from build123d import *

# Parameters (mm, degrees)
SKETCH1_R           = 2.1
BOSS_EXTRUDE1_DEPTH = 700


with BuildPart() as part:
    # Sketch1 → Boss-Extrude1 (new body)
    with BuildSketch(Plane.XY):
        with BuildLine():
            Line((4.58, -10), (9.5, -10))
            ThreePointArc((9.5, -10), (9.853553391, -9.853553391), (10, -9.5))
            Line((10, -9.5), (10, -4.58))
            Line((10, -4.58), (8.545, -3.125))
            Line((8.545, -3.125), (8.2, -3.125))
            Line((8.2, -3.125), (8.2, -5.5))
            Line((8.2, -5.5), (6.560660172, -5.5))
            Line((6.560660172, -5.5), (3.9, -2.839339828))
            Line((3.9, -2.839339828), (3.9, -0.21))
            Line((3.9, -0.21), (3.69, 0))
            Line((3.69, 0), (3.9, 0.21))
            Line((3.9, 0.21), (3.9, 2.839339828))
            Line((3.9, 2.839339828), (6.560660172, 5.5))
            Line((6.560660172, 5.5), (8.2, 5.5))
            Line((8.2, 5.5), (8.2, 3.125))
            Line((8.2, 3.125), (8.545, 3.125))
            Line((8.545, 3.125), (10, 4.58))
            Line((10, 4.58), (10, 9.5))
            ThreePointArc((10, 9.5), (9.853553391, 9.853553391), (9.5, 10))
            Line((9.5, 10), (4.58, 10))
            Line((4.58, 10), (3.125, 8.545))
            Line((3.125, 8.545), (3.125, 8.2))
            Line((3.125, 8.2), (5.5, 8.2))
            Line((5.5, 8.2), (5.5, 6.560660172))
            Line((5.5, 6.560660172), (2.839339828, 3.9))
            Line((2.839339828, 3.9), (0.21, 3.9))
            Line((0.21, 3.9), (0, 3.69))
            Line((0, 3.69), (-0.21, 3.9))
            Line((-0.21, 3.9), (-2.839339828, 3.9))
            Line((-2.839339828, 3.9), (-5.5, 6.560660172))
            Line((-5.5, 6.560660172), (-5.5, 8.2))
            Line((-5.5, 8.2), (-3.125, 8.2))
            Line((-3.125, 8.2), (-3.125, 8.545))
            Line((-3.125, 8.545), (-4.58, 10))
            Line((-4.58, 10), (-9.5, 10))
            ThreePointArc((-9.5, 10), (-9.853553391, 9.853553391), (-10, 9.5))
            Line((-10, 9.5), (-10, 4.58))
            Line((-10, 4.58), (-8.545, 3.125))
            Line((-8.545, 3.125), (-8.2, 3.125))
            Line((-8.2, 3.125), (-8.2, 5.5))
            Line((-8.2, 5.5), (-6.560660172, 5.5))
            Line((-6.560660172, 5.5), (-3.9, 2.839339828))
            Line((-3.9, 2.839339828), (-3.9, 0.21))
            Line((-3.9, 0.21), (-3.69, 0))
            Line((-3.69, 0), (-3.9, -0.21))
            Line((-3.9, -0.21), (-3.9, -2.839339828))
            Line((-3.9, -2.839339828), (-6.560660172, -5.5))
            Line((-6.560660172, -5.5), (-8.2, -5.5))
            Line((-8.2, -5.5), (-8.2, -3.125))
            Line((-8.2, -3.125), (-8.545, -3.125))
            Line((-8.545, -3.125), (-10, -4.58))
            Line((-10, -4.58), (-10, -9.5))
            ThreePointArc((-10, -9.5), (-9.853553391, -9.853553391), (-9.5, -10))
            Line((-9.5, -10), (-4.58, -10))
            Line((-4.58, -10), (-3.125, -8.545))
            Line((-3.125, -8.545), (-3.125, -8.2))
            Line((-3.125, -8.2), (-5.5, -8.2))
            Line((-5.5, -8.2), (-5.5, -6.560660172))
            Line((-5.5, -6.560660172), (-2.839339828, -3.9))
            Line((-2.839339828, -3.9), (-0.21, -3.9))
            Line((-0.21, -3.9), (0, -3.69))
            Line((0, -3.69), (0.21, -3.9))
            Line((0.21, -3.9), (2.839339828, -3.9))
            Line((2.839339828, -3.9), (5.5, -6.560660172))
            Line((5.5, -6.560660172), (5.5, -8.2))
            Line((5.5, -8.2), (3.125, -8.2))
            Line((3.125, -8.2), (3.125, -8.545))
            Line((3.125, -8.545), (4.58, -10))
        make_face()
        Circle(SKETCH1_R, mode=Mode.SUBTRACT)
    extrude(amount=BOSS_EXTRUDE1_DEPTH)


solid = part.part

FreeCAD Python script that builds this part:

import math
import FreeCAD as App
import Part
import Sketcher
from FreeCAD import Vector
Q = App.Units.Quantity

doc = App.newDocument("Part")
body = doc.addObject("PartDesign::Body", "Body")

# Sketch on XY plane
sketch1 = body.newObject("Sketcher::SketchObject", "Sketch")
sketch1.AttachmentSupport = (doc.getObject("XY_Plane"), [""])
sketch1.MapMode = "FlatFace"
sketch1.addGeometry(Part.LineSegment(Vector(4.58, -10, 0), Vector(9.5, -10, 0)), False)
sketch1.addGeometry(Part.ArcOfCircle(Part.Circle(Vector(9.5, -9.5, 0), Vector(0, 0, 1), 0.5), math.radians(-90), math.radians(0)), False)
sketch1.addGeometry(Part.LineSegment(Vector(10, -9.5, 0), Vector(10, -4.58, 0)), False)
sketch1.addGeometry(Part.LineSegment(Vector(10, -4.58, 0), Vector(8.54, -3.12, 0)), False)
sketch1.addGeometry(Part.LineSegment(Vector(8.54, -3.12, 0), Vector(8.2, -3.12, 0)), False)
sketch1.addGeometry(Part.LineSegment(Vector(8.2, -3.12, 0), Vector(8.2, -5.5, 0)), False)
sketch1.addGeometry(Part.LineSegment(Vector(8.2, -5.5, 0), Vector(6.56, -5.5, 0)), False)
sketch1.addGeometry(Part.LineSegment(Vector(6.56, -5.5, 0), Vector(3.9, -2.84, 0)), False)
sketch1.addGeometry(Part.LineSegment(Vector(3.9, -2.84, 0), Vector(3.9, -0.21, 0)), False)
sketch1.addGeometry(Part.LineSegment(Vector(3.9, -0.21, 0), Vector(3.69, 0, 0)), False)
sketch1.addGeometry(Part.LineSegment(Vector(3.69, 0, 0), Vector(3.9, 0.21, 0)), False)
sketch1.addGeometry(Part.LineSegment(Vector(3.9, 0.21, 0), Vector(3.9, 2.84, 0)), False)
sketch1.addGeometry(Part.LineSegment(Vector(3.9, 2.84, 0), Vector(6.56, 5.5, 0)), False)
sketch1.addGeometry(Part.LineSegment(Vector(6.56, 5.5, 0), Vector(8.2, 5.5, 0)), False)
sketch1.addGeometry(Part.LineSegment(Vector(8.2, 5.5, 0), Vector(8.2, 3.12, 0)), False)
sketch1.addGeometry(Part.LineSegment(Vector(8.2, 3.12, 0), Vector(8.54, 3.12, 0)), False)
sketch1.addGeometry(Part.LineSegment(Vector(8.54, 3.12, 0), Vector(10, 4.58, 0)), False)
sketch1.addGeometry(Part.LineSegment(Vector(10, 4.58, 0), Vector(10, 9.5, 0)), False)
sketch1.addGeometry(Part.ArcOfCircle(Part.Circle(Vector(9.5, 9.5, 0), Vector(0, 0, 1), 0.5), math.radians(0), math.radians(90)), False)
sketch1.addGeometry(Part.LineSegment(Vector(9.5, 10, 0), Vector(4.58, 10, 0)), False)
sketch1.addGeometry(Part.LineSegment(Vector(4.58, 10, 0), Vector(3.12, 8.54, 0)), False)
sketch1.addGeometry(Part.LineSegment(Vector(3.12, 8.54, 0), Vector(3.12, 8.2, 0)), False)
sketch1.addGeometry(Part.LineSegment(Vector(3.12, 8.2, 0), Vector(5.5, 8.2, 0)), False)
sketch1.addGeometry(Part.LineSegment(Vector(5.5, 8.2, 0), Vector(5.5, 6.56, 0)), False)
sketch1.addGeometry(Part.LineSegment(Vector(5.5, 6.56, 0), Vector(2.84, 3.9, 0)), False)
sketch1.addGeometry(Part.LineSegment(Vector(2.84, 3.9, 0), Vector(0.21, 3.9, 0)), False)
sketch1.addGeometry(Part.LineSegment(Vector(0.21, 3.9, 0), Vector(0, 3.69, 0)), False)
sketch1.addGeometry(Part.LineSegment(Vector(0, 3.69, 0), Vector(-0.21, 3.9, 0)), False)
sketch1.addGeometry(Part.LineSegment(Vector(-0.21, 3.9, 0), Vector(-2.84, 3.9, 0)), False)
sketch1.addGeometry(Part.LineSegment(Vector(-2.84, 3.9, 0), Vector(-5.5, 6.56, 0)), False)
sketch1.addGeometry(Part.LineSegment(Vector(-5.5, 6.56, 0), Vector(-5.5, 8.2, 0)), False)
sketch1.addGeometry(Part.LineSegment(Vector(-5.5, 8.2, 0), Vector(-3.12, 8.2, 0)), False)
sketch1.addGeometry(Part.LineSegment(Vector(-3.12, 8.2, 0), Vector(-3.12, 8.54, 0)), False)
sketch1.addGeometry(Part.LineSegment(Vector(-3.12, 8.54, 0), Vector(-4.58, 10, 0)), False)
sketch1.addGeometry(Part.LineSegment(Vector(-4.58, 10, 0), Vector(-9.5, 10, 0)), False)
sketch1.addGeometry(Part.ArcOfCircle(Part.Circle(Vector(-9.5, 9.5, 0), Vector(0, 0, 1), 0.5), math.radians(90), math.radians(180)), False)
sketch1.addGeometry(Part.LineSegment(Vector(-10, 9.5, 0), Vector(-10, 4.58, 0)), False)
sketch1.addGeometry(Part.LineSegment(Vector(-10, 4.58, 0), Vector(-8.54, 3.12, 0)), False)
sketch1.addGeometry(Part.LineSegment(Vector(-8.54, 3.12, 0), Vector(-8.2, 3.12, 0)), False)
sketch1.addGeometry(Part.LineSegment(Vector(-8.2, 3.12, 0), Vector(-8.2, 5.5, 0)), False)
sketch1.addGeometry(Part.LineSegment(Vector(-8.2, 5.5, 0), Vector(-6.56, 5.5, 0)), False)
sketch1.addGeometry(Part.LineSegment(Vector(-6.56, 5.5, 0), Vector(-3.9, 2.84, 0)), False)
sketch1.addGeometry(Part.LineSegment(Vector(-3.9, 2.84, 0), Vector(-3.9, 0.21, 0)), False)
sketch1.addGeometry(Part.LineSegment(Vector(-3.9, 0.21, 0), Vector(-3.69, 0, 0)), False)
sketch1.addGeometry(Part.LineSegment(Vector(-3.69, 0, 0), Vector(-3.9, -0.21, 0)), False)
sketch1.addGeometry(Part.LineSegment(Vector(-3.9, -0.21, 0), Vector(-3.9, -2.84, 0)), False)
sketch1.addGeometry(Part.LineSegment(Vector(-3.9, -2.84, 0), Vector(-6.56, -5.5, 0)), False)
sketch1.addGeometry(Part.LineSegment(Vector(-6.56, -5.5, 0), Vector(-8.2, -5.5, 0)), False)
sketch1.addGeometry(Part.LineSegment(Vector(-8.2, -5.5, 0), Vector(-8.2, -3.12, 0)), False)
sketch1.addGeometry(Part.LineSegment(Vector(-8.2, -3.12, 0), Vector(-8.54, -3.12, 0)), False)
sketch1.addGeometry(Part.LineSegment(Vector(-8.54, -3.12, 0), Vector(-10, -4.58, 0)), False)
sketch1.addGeometry(Part.LineSegment(Vector(-10, -4.58, 0), Vector(-10, -9.5, 0)), False)
sketch1.addGeometry(Part.ArcOfCircle(Part.Circle(Vector(-9.5, -9.5, 0), Vector(0, 0, 1), 0.5), math.radians(180), math.radians(270)), False)
sketch1.addGeometry(Part.LineSegment(Vector(-9.5, -10, 0), Vector(-4.58, -10, 0)), False)
sketch1.addGeometry(Part.LineSegment(Vector(-4.58, -10, 0), Vector(-3.12, -8.54, 0)), False)
sketch1.addGeometry(Part.LineSegment(Vector(-3.12, -8.54, 0), Vector(-3.12, -8.2, 0)), False)
sketch1.addGeometry(Part.LineSegment(Vector(-3.12, -8.2, 0), Vector(-5.5, -8.2, 0)), False)
sketch1.addGeometry(Part.LineSegment(Vector(-5.5, -8.2, 0), Vector(-5.5, -6.56, 0)), False)
sketch1.addGeometry(Part.LineSegment(Vector(-5.5, -6.56, 0), Vector(-2.84, -3.9, 0)), False)
sketch1.addGeometry(Part.LineSegment(Vector(-2.84, -3.9, 0), Vector(-0.21, -3.9, 0)), False)
sketch1.addGeometry(Part.LineSegment(Vector(-0.21, -3.9, 0), Vector(0, -3.69, 0)), False)
sketch1.addGeometry(Part.LineSegment(Vector(0, -3.69, 0), Vector(0.21, -3.9, 0)), False)
sketch1.addGeometry(Part.LineSegment(Vector(0.21, -3.9, 0), Vector(2.84, -3.9, 0)), False)
sketch1.addGeometry(Part.LineSegment(Vector(2.84, -3.9, 0), Vector(5.5, -6.56, 0)), False)
sketch1.addGeometry(Part.LineSegment(Vector(5.5, -6.56, 0), Vector(5.5, -8.2, 0)), False)
sketch1.addGeometry(Part.LineSegment(Vector(5.5, -8.2, 0), Vector(3.12, -8.2, 0)), False)
sketch1.addGeometry(Part.LineSegment(Vector(3.12, -8.2, 0), Vector(3.12, -8.54, 0)), False)
sketch1.addGeometry(Part.LineSegment(Vector(3.12, -8.54, 0), Vector(4.58, -10, 0)), False)
sketch1.addGeometry(Part.Circle(Vector(0, 0, 0), Vector(0, 0, 1), 2.1), False)
sketch1.addConstraint(Sketcher.Constraint("Tangent", 0, 2, 1, 1))
sketch1.addConstraint(Sketcher.Constraint("Tangent", 1, 2, 2, 1))
sketch1.addConstraint(Sketcher.Constraint("Coincident", 2, 2, 3, 1))
sketch1.addConstraint(Sketcher.Constraint("Coincident", 3, 2, 4, 1))
sketch1.addConstraint(Sketcher.Constraint("Coincident", 4, 2, 5, 1))
sketch1.addConstraint(Sketcher.Constraint("Coincident", 5, 2, 6, 1))
sketch1.addConstraint(Sketcher.Constraint("Coincident", 6, 2, 7, 1))
sketch1.addConstraint(Sketcher.Constraint("Coincident", 7, 2, 8, 1))
sketch1.addConstraint(Sketcher.Constraint("Coincident", 8, 2, 9, 1))
sketch1.addConstraint(Sketcher.Constraint("Coincident", 9, 2, 10, 1))
sketch1.addConstraint(Sketcher.Constraint("Coincident", 10, 2, 11, 1))
sketch1.addConstraint(Sketcher.Constraint("Coincident", 11, 2, 12, 1))
sketch1.addConstraint(Sketcher.Constraint("Coincident", 12, 2, 13, 1))
sketch1.addConstraint(Sketcher.Constraint("Coincident", 13, 2, 14, 1))
sketch1.addConstraint(Sketcher.Constraint("Coincident", 14, 2, 15, 1))
sketch1.addConstraint(Sketcher.Constraint("Coincident", 15, 2, 16, 1))
sketch1.addConstraint(Sketcher.Constraint("Coincident", 16, 2, 17, 1))
sketch1.addConstraint(Sketcher.Constraint("Tangent", 17, 2, 18, 1))
sketch1.addConstraint(Sketcher.Constraint("Tangent", 18, 2, 19, 1))
sketch1.addConstraint(Sketcher.Constraint("Coincident", 19, 2, 20, 1))
sketch1.addConstraint(Sketcher.Constraint("Coincident", 20, 2, 21, 1))
sketch1.addConstraint(Sketcher.Constraint("Coincident", 21, 2, 22, 1))
sketch1.addConstraint(Sketcher.Constraint("Coincident", 22, 2, 23, 1))
sketch1.addConstraint(Sketcher.Constraint("Coincident", 23, 2, 24, 1))
sketch1.addConstraint(Sketcher.Constraint("Coincident", 24, 2, 25, 1))
sketch1.addConstraint(Sketcher.Constraint("Coincident", 25, 2, 26, 1))
sketch1.addConstraint(Sketcher.Constraint("Coincident", 26, 2, 27, 1))
sketch1.addConstraint(Sketcher.Constraint("Coincident", 27, 2, 28, 1))
sketch1.addConstraint(Sketcher.Constraint("Coincident", 28, 2, 29, 1))
sketch1.addConstraint(Sketcher.Constraint("Coincident", 29, 2, 30, 1))
sketch1.addConstraint(Sketcher.Constraint("Coincident", 30, 2, 31, 1))
sketch1.addConstraint(Sketcher.Constraint("Coincident", 31, 2, 32, 1))
sketch1.addConstraint(Sketcher.Constraint("Coincident", 32, 2, 33, 1))
sketch1.addConstraint(Sketcher.Constraint("Coincident", 33, 2, 34, 1))
sketch1.addConstraint(Sketcher.Constraint("Tangent", 34, 2, 35, 1))
sketch1.addConstraint(Sketcher.Constraint("Tangent", 35, 2, 36, 1))
sketch1.addConstraint(Sketcher.Constraint("Coincident", 36, 2, 37, 1))
sketch1.addConstraint(Sketcher.Constraint("Coincident", 37, 2, 38, 1))
sketch1.addConstraint(Sketcher.Constraint("Coincident", 38, 2, 39, 1))
sketch1.addConstraint(Sketcher.Constraint("Coincident", 39, 2, 40, 1))
sketch1.addConstraint(Sketcher.Constraint("Coincident", 40, 2, 41, 1))
sketch1.addConstraint(Sketcher.Constraint("Coincident", 41, 2, 42, 1))
sketch1.addConstraint(Sketcher.Constraint("Coincident", 42, 2, 43, 1))
sketch1.addConstraint(Sketcher.Constraint("Coincident", 43, 2, 44, 1))
sketch1.addConstraint(Sketcher.Constraint("Coincident", 44, 2, 45, 1))
sketch1.addConstraint(Sketcher.Constraint("Coincident", 45, 2, 46, 1))
sketch1.addConstraint(Sketcher.Constraint("Coincident", 46, 2, 47, 1))
sketch1.addConstraint(Sketcher.Constraint("Coincident", 47, 2, 48, 1))
sketch1.addConstraint(Sketcher.Constraint("Coincident", 48, 2, 49, 1))
sketch1.addConstraint(Sketcher.Constraint("Coincident", 49, 2, 50, 1))
sketch1.addConstraint(Sketcher.Constraint("Coincident", 50, 2, 51, 1))
sketch1.addConstraint(Sketcher.Constraint("Tangent", 51, 2, 52, 1))
sketch1.addConstraint(Sketcher.Constraint("Tangent", 52, 2, 53, 1))
sketch1.addConstraint(Sketcher.Constraint("Coincident", 53, 2, 54, 1))
sketch1.addConstraint(Sketcher.Constraint("Coincident", 54, 2, 55, 1))
sketch1.addConstraint(Sketcher.Constraint("Coincident", 55, 2, 56, 1))
sketch1.addConstraint(Sketcher.Constraint("Coincident", 56, 2, 57, 1))
sketch1.addConstraint(Sketcher.Constraint("Coincident", 57, 2, 58, 1))
sketch1.addConstraint(Sketcher.Constraint("Coincident", 58, 2, 59, 1))
sketch1.addConstraint(Sketcher.Constraint("Coincident", 59, 2, 60, 1))
sketch1.addConstraint(Sketcher.Constraint("Coincident", 60, 2, 61, 1))
sketch1.addConstraint(Sketcher.Constraint("Coincident", 61, 2, 62, 1))
sketch1.addConstraint(Sketcher.Constraint("Coincident", 62, 2, 63, 1))
sketch1.addConstraint(Sketcher.Constraint("Coincident", 63, 2, 64, 1))
sketch1.addConstraint(Sketcher.Constraint("Coincident", 64, 2, 65, 1))
sketch1.addConstraint(Sketcher.Constraint("Coincident", 65, 2, 66, 1))
sketch1.addConstraint(Sketcher.Constraint("Coincident", 66, 2, 67, 1))
sketch1.addConstraint(Sketcher.Constraint("Coincident", 67, 2, 0, 1))
sketch1.addConstraint(Sketcher.Constraint("Horizontal", 0))
sketch1.addConstraint(Sketcher.Constraint("Vertical", 2))
sketch1.addConstraint(Sketcher.Constraint("Horizontal", 4))
sketch1.addConstraint(Sketcher.Constraint("Vertical", 5))
sketch1.addConstraint(Sketcher.Constraint("Horizontal", 6))
sketch1.addConstraint(Sketcher.Constraint("Vertical", 8))
sketch1.addConstraint(Sketcher.Constraint("Vertical", 11))
sketch1.addConstraint(Sketcher.Constraint("Horizontal", 13))
sketch1.addConstraint(Sketcher.Constraint("Vertical", 14))
sketch1.addConstraint(Sketcher.Constraint("Horizontal", 15))
sketch1.addConstraint(Sketcher.Constraint("Vertical", 17))
sketch1.addConstraint(Sketcher.Constraint("Horizontal", 19))
sketch1.addConstraint(Sketcher.Constraint("Vertical", 21))
sketch1.addConstraint(Sketcher.Constraint("Horizontal", 22))
sketch1.addConstraint(Sketcher.Constraint("Vertical", 23))
sketch1.addConstraint(Sketcher.Constraint("Horizontal", 25))
sketch1.addConstraint(Sketcher.Constraint("Horizontal", 28))
sketch1.addConstraint(Sketcher.Constraint("Vertical", 30))
sketch1.addConstraint(Sketcher.Constraint("Horizontal", 31))
sketch1.addConstraint(Sketcher.Constraint("Vertical", 32))
sketch1.addConstraint(Sketcher.Constraint("Horizontal", 34))
sketch1.addConstraint(Sketcher.Constraint("Vertical", 36))
sketch1.addConstraint(Sketcher.Constraint("Horizontal", 38))
sketch1.addConstraint(Sketcher.Constraint("Vertical", 39))
sketch1.addConstraint(Sketcher.Constraint("Horizontal", 40))
sketch1.addConstraint(Sketcher.Constraint("Vertical", 42))
sketch1.addConstraint(Sketcher.Constraint("Vertical", 45))
sketch1.addConstraint(Sketcher.Constraint("Horizontal", 47))
sketch1.addConstraint(Sketcher.Constraint("Vertical", 48))
sketch1.addConstraint(Sketcher.Constraint("Horizontal", 49))
sketch1.addConstraint(Sketcher.Constraint("Vertical", 51))
sketch1.addConstraint(Sketcher.Constraint("Horizontal", 53))
sketch1.addConstraint(Sketcher.Constraint("Vertical", 55))
sketch1.addConstraint(Sketcher.Constraint("Horizontal", 56))
sketch1.addConstraint(Sketcher.Constraint("Vertical", 57))
sketch1.addConstraint(Sketcher.Constraint("Horizontal", 59))
sketch1.addConstraint(Sketcher.Constraint("Horizontal", 62))
sketch1.addConstraint(Sketcher.Constraint("Vertical", 64))
sketch1.addConstraint(Sketcher.Constraint("Horizontal", 65))
sketch1.addConstraint(Sketcher.Constraint("Vertical", 66))
sketch1.addConstraint(Sketcher.Constraint("Coincident", 68, 3, -1, 1))
sketch1.addConstraint(Sketcher.Constraint("Equal", 1, 18))
sketch1.addConstraint(Sketcher.Constraint("Equal", 18, 35))
sketch1.addConstraint(Sketcher.Constraint("Equal", 35, 52))
sketch1.addConstraint(Sketcher.Constraint("Symmetric", 1, 3, 35, 3, -1, 1))
sketch1.addConstraint(Sketcher.Constraint("Symmetric", 18, 3, 52, 3, -1, 1))
sketch1.addConstraint(Sketcher.Constraint("Symmetric", 3, 2, 37, 2, -1, 1))
sketch1.addConstraint(Sketcher.Constraint("Symmetric", 5, 2, 39, 2, -1, 1))
sketch1.addConstraint(Sketcher.Constraint("Symmetric", 7, 2, 41, 2, -1, 1))
sketch1.addConstraint(Sketcher.Constraint("Symmetric", 9, 2, 43, 2, -1, 1))
sketch1.addConstraint(Sketcher.Constraint("Symmetric", 10, 2, 44, 2, -1, 1))
sketch1.addConstraint(Sketcher.Constraint("Symmetric", 12, 2, 46, 2, -1, 1))
sketch1.addConstraint(Sketcher.Constraint("Symmetric", 14, 2, 48, 2, -1, 1))
sketch1.addConstraint(Sketcher.Constraint("Symmetric", 20, 2, 54, 2, -1, 1))
sketch1.addConstraint(Sketcher.Constraint("Symmetric", 22, 2, 56, 2, -1, 1))
sketch1.addConstraint(Sketcher.Constraint("Symmetric", 24, 2, 58, 2, -1, 1))
sketch1.addConstraint(Sketcher.Constraint("Symmetric", 26, 2, 60, 2, -1, 1))
sketch1.addConstraint(Sketcher.Constraint("Symmetric", 27, 2, 61, 2, -1, 1))
sketch1.addConstraint(Sketcher.Constraint("Symmetric", 29, 2, 63, 2, -1, 1))
sketch1.addConstraint(Sketcher.Constraint("Symmetric", 31, 2, 65, 2, -1, 1))
sketch1.addConstraint(Sketcher.Constraint("Symmetric", 18, 3, 35, 3, -2))
sketch1.addConstraint(Sketcher.Constraint("Symmetric", 25, 2, 27, 2, -2))
sketch1.addConstraint(Sketcher.Constraint("Symmetric", 23, 2, 29, 2, -2))
sketch1.addConstraint(Sketcher.Constraint("Symmetric", 21, 2, 31, 2, -2))
sketch1.addConstraint(Sketcher.Constraint("Symmetric", 15, 2, 37, 2, -2))
sketch1.addConstraint(Sketcher.Constraint("Symmetric", 13, 2, 39, 2, -2))
sketch1.addConstraint(Sketcher.Constraint("Symmetric", 11, 2, 41, 2, -2))
sketch1.addConstraint(Sketcher.Constraint("PointOnObject", 9, 2, -1))
sketch1.addConstraint(Sketcher.Constraint("PointOnObject", 26, 2, -2))
sketch1.addConstraint(Sketcher.Constraint("Parallel", 3, 7))
sketch1.addConstraint(Sketcher.Constraint("Parallel", 7, 9))
sketch1.addConstraint(Sketcher.Constraint("Perpendicular", 9, 10))
sketch1.addConstraint(Sketcher.Constraint("Parallel", 10, 12))
sketch1.addConstraint(Sketcher.Constraint("Parallel", 12, 16))
sketch1.addConstraint(Sketcher.Constraint("Parallel", 16, 20))
sketch1.addConstraint(Sketcher.Constraint("Parallel", 20, 24))
sketch1.addConstraint(Sketcher.Constraint("Parallel", 24, 26))
sketch1.addConstraint(Sketcher.Constraint("Perpendicular", 26, 27))
sketch1.addConstraint(Sketcher.Constraint("Parallel", 27, 29))
sketch1.addConstraint(Sketcher.Constraint("Parallel", 29, 33))
sketch1.addConstraint(Sketcher.Constraint("Parallel", 33, 37))
sketch1.addConstraint(Sketcher.Constraint("Parallel", 37, 41))
sketch1.addConstraint(Sketcher.Constraint("Parallel", 41, 43))
sketch1.addConstraint(Sketcher.Constraint("Parallel", 44, 46))
sketch1.addConstraint(Sketcher.Constraint("Parallel", 46, 50))
sketch1.addConstraint(Sketcher.Constraint("Parallel", 50, 54))
sketch1.addConstraint(Sketcher.Constraint("Parallel", 54, 58))
sketch1.addConstraint(Sketcher.Constraint("Parallel", 58, 60))
sketch1.addConstraint(Sketcher.Constraint("Parallel", 61, 63))
sketch1.addConstraint(Sketcher.Constraint("Parallel", 63, 67))
sketch1.addConstraint(Sketcher.Constraint("Horizontal", 20, 2, 32, 2))
sketch1.addConstraint(Sketcher.Constraint("Horizontal", 2, 2, 50, 2))
sketch1.addConstraint(Sketcher.Constraint("Horizontal", 54, 2, 66, 2))
sketch1.addConstraint(Sketcher.Constraint("Equal", 53, 2))
sketch1.addConstraint(Sketcher.Constraint("Equal", 65, 5))
sketch1.addConstraint(Sketcher.Constraint("Equal", 62, 8))
sketch1.addConstraint(Sketcher.Constraint("Equal", 49, 21))
sketch1.addConstraint(Sketcher.Constraint("Equal", 47, 23))
sketch1.addConstraint(Sketcher.Constraint("Equal", 16, 20))
sketch1.addConstraint(Sketcher.Constraint("Equal", 12, 24))
sketch1.addConstraint(Sketcher.Constraint("Equal", 10, 26))
sketch1.addConstraint(Sketcher.Constraint("Diameter", 68, Q("4.2 mm")))
sketch1.addConstraint(Sketcher.Constraint("Radius", 1, Q("0.5 mm")))
sketch1.addConstraint(Sketcher.Constraint("DistanceY", 0, 2, -1, 1, Q("10 mm")))
sketch1.addConstraint(Sketcher.Constraint("DistanceX", 0, 1, 0, 2, Q("4.92 mm")))
sketch1.addConstraint(Sketcher.Constraint("DistanceX", -1, 1, 4, 2, Q("8.2 mm")))
sketch1.addConstraint(Sketcher.Constraint("DistanceY", 5, 2, -1, 1, Q("5.5 mm")))
sketch1.addConstraint(Sketcher.Constraint("DistanceX", -1, 1, 7, 2, Q("3.9 mm")))
sketch1.addConstraint(Sketcher.Constraint("DistanceX", 4, 2, 4, 1, Q("0.345 mm")))
sketch1.addConstraint(Sketcher.Constraint("DistanceY", 8, 2, -1, 1, Q("0.21 mm")))
sketch1.addConstraint(Sketcher.Constraint("DistanceX", 6, 2, 6, 1, Q("1.63934 mm")))
pad1 = body.newObject("PartDesign::Pad", "Pad")
pad1.Profile = sketch1
pad1.Length = 700

doc.recompute()
